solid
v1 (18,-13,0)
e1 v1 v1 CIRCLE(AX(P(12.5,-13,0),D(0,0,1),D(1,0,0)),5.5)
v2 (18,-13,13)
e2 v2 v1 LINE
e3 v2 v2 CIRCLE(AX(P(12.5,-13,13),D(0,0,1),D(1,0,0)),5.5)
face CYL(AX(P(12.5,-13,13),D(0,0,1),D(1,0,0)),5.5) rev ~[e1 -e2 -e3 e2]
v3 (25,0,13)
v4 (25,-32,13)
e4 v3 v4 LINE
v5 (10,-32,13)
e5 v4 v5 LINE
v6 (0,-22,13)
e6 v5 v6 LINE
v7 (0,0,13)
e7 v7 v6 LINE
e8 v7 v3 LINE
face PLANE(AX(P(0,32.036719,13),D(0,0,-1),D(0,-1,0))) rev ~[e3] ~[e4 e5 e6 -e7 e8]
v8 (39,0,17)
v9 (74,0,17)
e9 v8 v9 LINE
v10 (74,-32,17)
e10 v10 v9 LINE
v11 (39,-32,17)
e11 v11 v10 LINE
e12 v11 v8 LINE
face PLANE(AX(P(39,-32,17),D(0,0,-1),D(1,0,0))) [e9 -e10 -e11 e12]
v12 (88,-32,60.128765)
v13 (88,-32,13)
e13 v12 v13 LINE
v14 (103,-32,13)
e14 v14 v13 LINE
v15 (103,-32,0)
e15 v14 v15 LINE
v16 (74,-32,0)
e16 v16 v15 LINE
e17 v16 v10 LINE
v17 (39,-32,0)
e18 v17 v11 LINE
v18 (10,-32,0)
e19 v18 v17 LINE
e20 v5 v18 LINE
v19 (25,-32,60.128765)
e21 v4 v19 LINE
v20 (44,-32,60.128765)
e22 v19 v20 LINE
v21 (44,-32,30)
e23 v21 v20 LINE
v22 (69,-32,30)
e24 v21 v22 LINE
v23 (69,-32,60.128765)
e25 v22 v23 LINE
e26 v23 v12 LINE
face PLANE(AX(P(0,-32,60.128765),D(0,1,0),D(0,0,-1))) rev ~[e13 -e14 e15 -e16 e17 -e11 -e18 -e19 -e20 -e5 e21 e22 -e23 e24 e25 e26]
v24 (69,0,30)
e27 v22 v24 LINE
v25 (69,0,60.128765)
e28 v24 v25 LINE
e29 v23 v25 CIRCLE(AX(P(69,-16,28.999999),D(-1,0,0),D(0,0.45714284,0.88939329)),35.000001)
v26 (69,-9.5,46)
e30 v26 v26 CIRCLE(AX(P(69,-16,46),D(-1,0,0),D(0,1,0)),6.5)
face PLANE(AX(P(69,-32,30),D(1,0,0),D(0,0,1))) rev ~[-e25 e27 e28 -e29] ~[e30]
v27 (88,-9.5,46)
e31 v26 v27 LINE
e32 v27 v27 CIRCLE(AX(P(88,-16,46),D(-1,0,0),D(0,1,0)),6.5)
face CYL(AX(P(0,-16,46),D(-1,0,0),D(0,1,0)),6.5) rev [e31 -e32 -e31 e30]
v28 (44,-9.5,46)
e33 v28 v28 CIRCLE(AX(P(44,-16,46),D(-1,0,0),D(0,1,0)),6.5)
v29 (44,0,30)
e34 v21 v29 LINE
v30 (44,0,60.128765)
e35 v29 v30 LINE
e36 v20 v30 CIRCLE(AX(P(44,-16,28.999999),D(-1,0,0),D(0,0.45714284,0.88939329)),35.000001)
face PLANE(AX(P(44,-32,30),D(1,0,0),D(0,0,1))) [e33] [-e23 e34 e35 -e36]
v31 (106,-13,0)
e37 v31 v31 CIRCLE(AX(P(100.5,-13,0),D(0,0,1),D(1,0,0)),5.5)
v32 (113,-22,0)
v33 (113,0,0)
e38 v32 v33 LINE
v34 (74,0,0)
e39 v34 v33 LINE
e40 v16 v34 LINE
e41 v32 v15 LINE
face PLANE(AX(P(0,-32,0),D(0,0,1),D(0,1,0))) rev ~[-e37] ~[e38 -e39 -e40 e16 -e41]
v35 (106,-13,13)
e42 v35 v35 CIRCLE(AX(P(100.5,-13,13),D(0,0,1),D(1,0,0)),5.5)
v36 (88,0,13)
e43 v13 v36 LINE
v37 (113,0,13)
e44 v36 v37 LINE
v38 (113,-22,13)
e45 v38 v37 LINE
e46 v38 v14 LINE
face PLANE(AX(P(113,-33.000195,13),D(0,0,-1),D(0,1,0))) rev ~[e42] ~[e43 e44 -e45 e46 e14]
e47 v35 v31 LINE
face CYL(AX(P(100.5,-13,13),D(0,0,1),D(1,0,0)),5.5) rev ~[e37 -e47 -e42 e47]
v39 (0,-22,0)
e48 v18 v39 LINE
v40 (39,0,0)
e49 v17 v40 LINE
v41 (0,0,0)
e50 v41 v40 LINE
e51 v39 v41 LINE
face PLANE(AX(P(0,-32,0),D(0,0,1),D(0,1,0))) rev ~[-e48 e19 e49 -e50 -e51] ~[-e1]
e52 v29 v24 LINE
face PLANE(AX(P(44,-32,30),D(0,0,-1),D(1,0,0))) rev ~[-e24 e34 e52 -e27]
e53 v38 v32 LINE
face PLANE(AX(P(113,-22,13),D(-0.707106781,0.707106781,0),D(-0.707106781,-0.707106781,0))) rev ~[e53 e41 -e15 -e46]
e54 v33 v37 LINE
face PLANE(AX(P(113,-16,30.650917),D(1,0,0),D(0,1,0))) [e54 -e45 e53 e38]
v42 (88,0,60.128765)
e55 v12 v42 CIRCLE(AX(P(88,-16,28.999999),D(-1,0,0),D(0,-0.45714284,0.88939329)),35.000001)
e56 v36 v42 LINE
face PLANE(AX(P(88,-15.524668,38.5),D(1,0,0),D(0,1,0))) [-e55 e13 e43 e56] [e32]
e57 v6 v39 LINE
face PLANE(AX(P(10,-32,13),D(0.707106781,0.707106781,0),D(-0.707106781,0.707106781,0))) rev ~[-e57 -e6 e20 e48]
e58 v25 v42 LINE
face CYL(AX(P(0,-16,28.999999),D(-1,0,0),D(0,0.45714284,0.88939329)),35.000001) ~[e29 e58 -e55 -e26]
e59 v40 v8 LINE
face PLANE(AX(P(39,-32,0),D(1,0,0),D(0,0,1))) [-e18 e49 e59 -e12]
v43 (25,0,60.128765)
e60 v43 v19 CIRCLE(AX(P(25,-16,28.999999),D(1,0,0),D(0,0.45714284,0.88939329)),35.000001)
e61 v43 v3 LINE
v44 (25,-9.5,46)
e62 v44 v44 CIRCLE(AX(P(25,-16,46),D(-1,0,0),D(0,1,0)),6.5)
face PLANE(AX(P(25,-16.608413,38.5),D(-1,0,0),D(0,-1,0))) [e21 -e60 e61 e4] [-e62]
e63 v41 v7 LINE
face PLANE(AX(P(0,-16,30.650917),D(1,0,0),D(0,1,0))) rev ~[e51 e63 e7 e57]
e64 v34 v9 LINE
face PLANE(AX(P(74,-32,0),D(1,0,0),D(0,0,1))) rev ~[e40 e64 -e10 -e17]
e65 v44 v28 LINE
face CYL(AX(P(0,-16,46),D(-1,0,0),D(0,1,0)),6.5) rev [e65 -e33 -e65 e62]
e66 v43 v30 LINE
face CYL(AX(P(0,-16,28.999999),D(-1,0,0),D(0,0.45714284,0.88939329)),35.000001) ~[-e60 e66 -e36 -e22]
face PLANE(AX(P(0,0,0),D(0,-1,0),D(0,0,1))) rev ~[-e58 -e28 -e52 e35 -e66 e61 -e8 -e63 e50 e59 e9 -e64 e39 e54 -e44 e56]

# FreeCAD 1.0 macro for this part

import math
import FreeCAD as App
import Part
import Sketcher
from FreeCAD import Vector

doc = App.newDocument("Part")
body = doc.addObject("PartDesign::Body", "Body")

sketch1 = body.newObject("Sketcher::SketchObject", "Sketch")
sketch1.AttachmentSupport = (doc.getObject("YZ_Plane"), [""])
sketch1.MapMode = "FlatFace"
sketch1.addGeometry([
    Part.ArcOfCircle(Part.Circle(Vector(-16, 29, 0), Vector(0, 0, 1), 35), math.radians(63), math.radians(117)),
    Part.LineSegment(Vector(-32, 60, 0), Vector(-32, 0, 0)),
    Part.LineSegment(Vector(-32, 0, 0), Vector(0, 0, 0)),
    Part.LineSegment(Vector(0, 0, 0), Vector(0, 60, 0)),
    Part.Circle(Vector(-16, 46, 0), Vector(0, 0, 1), 6),
], False)
sketch1.addConstraint([
    Sketcher.Constraint("Coincident", 0, 2, 1, 1),
    Sketcher.Constraint("Coincident", 1, 2, 2, 1),
    Sketcher.Constraint("Coincident", 2, 2, 3, 1),
    Sketcher.Constraint("Coincident", 3, 2, 0, 1),
    Sketcher.Constraint("Vertical", 1),
    Sketcher.Constraint("Horizontal", 2),
    Sketcher.Constraint("Vertical", 3),
    Sketcher.Constraint("Coincident", 2, 2, -1, 1),
    Sketcher.Constraint("Horizontal", 0, 2, 3, 2),
    Sketcher.Constraint("Vertical", 0, 3, 4, 3),
    Sketcher.Constraint("Diameter", 4, 13.0),
    Sketcher.Constraint("Radius", 0, 35.000001),
    Sketcher.Constraint("DistanceX", 2, 1, 2, 2, 32.0),
    Sketcher.Constraint("DistanceY", -1, 1, 0, 3, 28.999999),
    Sketcher.Constraint("DistanceY", -1, 1, 4, 3, 46.0),
])
pad1 = body.newObject("PartDesign::Pad", "Pad")
pad1.Profile = sketch1
pad1.Length = 113

sketch2 = body.newObject("Sketcher::SketchObject", "Sketch001")
sketch2.AttachmentSupport = (doc.getObject("YZ_Plane"), [""])
sketch2.MapMode = "FlatFace"
sketch2.AttachmentOffset = App.Placement(Vector(0, 0, 113), App.Rotation())
sketch2.addGeometry([
    Part.LineSegment(Vector(-33, 64, 0), Vector(-33, 13, 0)),
    Part.LineSegment(Vector(-33, 13, 0), Vector(2, 13, 0)),
    Part.LineSegment(Vector(2, 13, 0), Vector(2, 64, 0)),
    Part.LineSegment(Vector(2, 64, 0), Vector(-33, 64, 0)),
], False)
sketch2.addConstraint([
    Sketcher.Constraint("Coincident", 0, 2, 1, 1),
    Sketcher.Constraint("Coincident", 1, 2, 2, 1),
    Sketcher.Constraint("Coincident", 2, 2, 3, 1),
    Sketcher.Constraint("Coincident", 3, 2, 0, 1),
    Sketcher.Constraint("Vertical", 0),
    Sketcher.Constraint("Horizontal", 1),
    Sketcher.Constraint("Vertical", 2),
    Sketcher.Constraint("Horizontal", 3),
    Sketcher.Constraint("DistanceY", 0, 2, 0, 1, 51.0),
    Sketcher.Constraint("DistanceY", -1, 1, 0, 2, 13.0),
    Sketcher.Constraint("DistanceX", 1, 1, 1, 2, 34.951055),
    Sketcher.Constraint("DistanceX", -1, 1, 1, 2, 1.950859),
])
pocket1 = body.newObject("PartDesign::Pocket", "Pocket")
pocket1.Profile = sketch2
pocket1.Length = 25

sketch3 = body.newObject("Sketcher::SketchObject", "Sketch002")
sketch3.AttachmentSupport = (doc.getObject("YZ_Plane"), [""])
sketch3.MapMode = "FlatFace"
sketch3.addGeometry([
    Part.LineSegment(Vector(32, 64, 0), Vector(32, 13, 0)),
    Part.LineSegment(Vector(32, 13, 0), Vector(-65, 13, 0)),
    Part.LineSegment(Vector(-65, 13, 0), Vector(-65, 64, 0)),
    Part.LineSegment(Vector(-65, 64, 0), Vector(32, 64, 0)),
], False)
sketch3.addConstraint([
    Sketcher.Constraint("Coincident", 0, 2, 1, 1),
    Sketcher.Constraint("Coincident", 1, 2, 2, 1),
    Sketcher.Constraint("Coincident", 2, 2, 3, 1),
    Sketcher.Constraint("Coincident", 3, 2, 0, 1),
    Sketcher.Constraint("Vertical", 0),
    Sketcher.Constraint("Horizontal", 1),
    Sketcher.Constraint("Vertical", 2),
    Sketcher.Constraint("Horizontal", 3),
    Sketcher.Constraint("DistanceY", 0, 2, 0, 1, 51.0),
    Sketcher.Constraint("DistanceY", -1, 1, 0, 2, 13.0),
    Sketcher.Constraint("DistanceX", 1, 2, 1, 1, 97.290264),
    Sketcher.Constraint("DistanceX", -1, 1, 0, 2, 32.036719),
])
pocket2 = body.newObject("PartDesign::Pocket", "Pocket001")
pocket2.Profile = sketch3
pocket2.Length = 25
pocket2.Reversed = True

sketch4 = body.newObject("Sketcher::SketchObject", "Sketch003")
sketch4.AttachmentSupport = (doc.getObject("XY_Plane"), [""])
sketch4.MapMode = "FlatFace"
sketch4.AttachmentOffset = App.Placement(Vector(0, 0, 13), App.Rotation())
sketch4.addGeometry([
    Part.Circle(Vector(100, -13, 0), Vector(0, 0, 1), 6),
    Part.Circle(Vector(12, -13, 0), Vector(0, 0, 1), 6),
], False)
sketch4.addConstraint([
    Sketcher.Constraint("Equal", 0, 1),
    Sketcher.Constraint("Horizontal", 0, 3, 1, 3),
    Sketcher.Constraint("Diameter", 0, 11.0),
    Sketcher.Constraint("DistanceY", 0, 3, -1, 1, 13.0),
    Sketcher.Constraint("DistanceX", 1, 3, 0, 3, 88.0),
    Sketcher.Constraint("DistanceX", -1, 1, 0, 3, 100.5),
])
pocket3 = body.newObject("PartDesign::Pocket", "Pocket002")
pocket3.Profile = sketch4
pocket3.Length = 25

sketch5 = body.newObject("Sketcher::SketchObject", "Sketch004")
sketch5.AttachmentSupport = (doc.getObject("XZ_Plane"), [""])
sketch5.MapMode = "FlatFace"
sketch5.AttachmentOffset = App.Placement(Vector(0, 0, 32), App.Rotation())
sketch5.addGeometry([
    Part.LineSegment(Vector(39, 17, 0), Vector(39, 0, 0)),
    Part.LineSegment(Vector(39, 0, 0), Vector(74, 0, 0)),
    Part.LineSegment(Vector(74, 0, 0), Vector(74, 17, 0)),
    Part.LineSegment(Vector(74, 17, 0), Vector(39, 17, 0)),
    Part.LineSegment(Vector(44, 64, 0), Vector(44, 30, 0)),
    Part.LineSegment(Vector(44, 30, 0), Vector(69, 30, 0)),
    Part.LineSegment(Vector(69, 30, 0), Vector(69, 64, 0)),
    Part.LineSegment(Vector(69, 64, 0), Vector(44, 64, 0)),
], False)
sketch5.addConstraint([
    Sketcher.Constraint("Coincident", 0, 2, 1, 1),
    Sketcher.Constraint("Coincident", 1, 2, 2, 1),
    Sketcher.Constraint("Coincident", 2, 2, 3, 1),
    Sketcher.Constraint("Coincident", 3, 2, 0, 1),
    Sketcher.Constraint("Coincident", 4, 2, 5, 1),
    Sketcher.Constraint("Coincident", 5, 2, 6, 1),
    Sketcher.Constraint("Coincident", 6, 2, 7, 1),
    Sketcher.Constraint("Coincident", 7, 2, 4, 1),
    Sketcher.Constraint("Vertical", 0),
    Sketcher.Constraint("Horizontal", 1),
    Sketcher.Constraint("Vertical", 2),
    Sketcher.Constraint("Horizontal", 3),
    Sketcher.Constraint("Vertical", 4),
    Sketcher.Constraint("Horizontal", 5),
    Sketcher.Constraint("Vertical", 6),
    Sketcher.Constraint("Horizontal", 7),
    Sketcher.Constraint("PointOnObject", 0, 2, -1),
    Sketcher.Constraint("DistanceX", 1, 1, 1, 2, 35.0),
    Sketcher.Constraint("DistanceX", 5, 1, 5, 2, 25.0),
    Sketcher.Constraint("DistanceY", 0, 2, 0, 1, 17.0),
    Sketcher.Constraint("DistanceX", -1, 1, 0, 2, 39.0),
    Sketcher.Constraint("DistanceX", -1, 1, 4, 2, 44.0),
    Sketcher.Constraint("DistanceY", -1, 1, 4, 2, 30.0),
    Sketcher.Constraint("DistanceY", 4, 2, 4, 1, 34.3365),
])
pocket4 = body.newObject("PartDesign::Pocket", "Pocket003")
pocket4.Profile = sketch5
pocket4.Type = "ThroughAll"

sketch6 = body.newObject("Sketcher::SketchObject", "Sketch005")
sketch6.AttachmentSupport = (doc.getObject("XY_Plane"), [""])
sketch6.MapMode = "FlatFace"
sketch6.AttachmentOffset = App.Placement(Vector(0, 0, 13), App.Rotation())
sketch6.addGeometry([
    Part.LineSegment(Vector(0, -22, 0), Vector(0, -32, 0)),
    Part.LineSegment(Vector(0, -32, 0), Vector(10, -32, 0)),
    Part.LineSegment(Vector(10, -32, 0), Vector(0, -22, 0)),
], False)
sketch6.addConstraint([
    Sketcher.Constraint("Coincident", 0, 2, 1, 1),
    Sketcher.Constraint("Coincident", 1, 2, 2, 1),
    Sketcher.Constraint("Coincident", 2, 2, 0, 1),
    Sketcher.Constraint("Vertical", 0),
    Sketcher.Constraint("Horizontal", 1),
    Sketcher.Constraint("PointOnObject", 0, 2, -2),
    Sketcher.Constraint("Equal", 1, 0),
    Sketcher.Constraint("DistanceX", 1, 1, 1, 2, 10.0),
    Sketcher.Constraint("DistanceY", 0, 2, -1, 1, 32.0),
])
pocket5 = body.newObject("PartDesign::Pocket", "Pocket004")
pocket5.Profile = sketch6
pocket5.Length = 25

sketch7 = body.newObject("Sketcher::SketchObject", "Sketch006")
sketch7.AttachmentSupport = (doc.getObject("XY_Plane"), [""])
sketch7.MapMode = "FlatFace"
sketch7.AttachmentOffset = App.Placement(Vector(0, 0, 13), App.Rotation())
sketch7.addGeometry([
    Part.LineSegment(Vector(103, -32, 0), Vector(113, -32, 0)),
    Part.LineSegment(Vector(113, -32, 0), Vector(113, -22, 0)),
    Part.LineSegment(Vector(113, -22, 0), Vector(103, -32, 0)),
], False)
sketch7.addConstraint([
    Sketcher.Constraint("Coincident", 0, 2, 1, 1),
    Sketcher.Constraint("Coincident", 1, 2, 2, 1),
    Sketcher.Constraint("Coincident", 2, 2, 0, 1),
    Sketcher.Constraint("Horizontal", 0),
    Sketcher.Constraint("Vertical", 1),
    Sketcher.Constraint("Equal", 0, 1),
    Sketcher.Constraint("DistanceX", 0, 1, 0, 2, 10.0),
    Sketcher.Constraint("DistanceX", -1, 1, 0, 2, 113.0),
    Sketcher.Constraint("DistanceY", 0, 2, -1, 1, 32.0),
])
pocket6 = body.newObject("PartDesign::Pocket", "Pocket005")
pocket6.Profile = sketch7
pocket6.Length = 25

doc.recompute()
